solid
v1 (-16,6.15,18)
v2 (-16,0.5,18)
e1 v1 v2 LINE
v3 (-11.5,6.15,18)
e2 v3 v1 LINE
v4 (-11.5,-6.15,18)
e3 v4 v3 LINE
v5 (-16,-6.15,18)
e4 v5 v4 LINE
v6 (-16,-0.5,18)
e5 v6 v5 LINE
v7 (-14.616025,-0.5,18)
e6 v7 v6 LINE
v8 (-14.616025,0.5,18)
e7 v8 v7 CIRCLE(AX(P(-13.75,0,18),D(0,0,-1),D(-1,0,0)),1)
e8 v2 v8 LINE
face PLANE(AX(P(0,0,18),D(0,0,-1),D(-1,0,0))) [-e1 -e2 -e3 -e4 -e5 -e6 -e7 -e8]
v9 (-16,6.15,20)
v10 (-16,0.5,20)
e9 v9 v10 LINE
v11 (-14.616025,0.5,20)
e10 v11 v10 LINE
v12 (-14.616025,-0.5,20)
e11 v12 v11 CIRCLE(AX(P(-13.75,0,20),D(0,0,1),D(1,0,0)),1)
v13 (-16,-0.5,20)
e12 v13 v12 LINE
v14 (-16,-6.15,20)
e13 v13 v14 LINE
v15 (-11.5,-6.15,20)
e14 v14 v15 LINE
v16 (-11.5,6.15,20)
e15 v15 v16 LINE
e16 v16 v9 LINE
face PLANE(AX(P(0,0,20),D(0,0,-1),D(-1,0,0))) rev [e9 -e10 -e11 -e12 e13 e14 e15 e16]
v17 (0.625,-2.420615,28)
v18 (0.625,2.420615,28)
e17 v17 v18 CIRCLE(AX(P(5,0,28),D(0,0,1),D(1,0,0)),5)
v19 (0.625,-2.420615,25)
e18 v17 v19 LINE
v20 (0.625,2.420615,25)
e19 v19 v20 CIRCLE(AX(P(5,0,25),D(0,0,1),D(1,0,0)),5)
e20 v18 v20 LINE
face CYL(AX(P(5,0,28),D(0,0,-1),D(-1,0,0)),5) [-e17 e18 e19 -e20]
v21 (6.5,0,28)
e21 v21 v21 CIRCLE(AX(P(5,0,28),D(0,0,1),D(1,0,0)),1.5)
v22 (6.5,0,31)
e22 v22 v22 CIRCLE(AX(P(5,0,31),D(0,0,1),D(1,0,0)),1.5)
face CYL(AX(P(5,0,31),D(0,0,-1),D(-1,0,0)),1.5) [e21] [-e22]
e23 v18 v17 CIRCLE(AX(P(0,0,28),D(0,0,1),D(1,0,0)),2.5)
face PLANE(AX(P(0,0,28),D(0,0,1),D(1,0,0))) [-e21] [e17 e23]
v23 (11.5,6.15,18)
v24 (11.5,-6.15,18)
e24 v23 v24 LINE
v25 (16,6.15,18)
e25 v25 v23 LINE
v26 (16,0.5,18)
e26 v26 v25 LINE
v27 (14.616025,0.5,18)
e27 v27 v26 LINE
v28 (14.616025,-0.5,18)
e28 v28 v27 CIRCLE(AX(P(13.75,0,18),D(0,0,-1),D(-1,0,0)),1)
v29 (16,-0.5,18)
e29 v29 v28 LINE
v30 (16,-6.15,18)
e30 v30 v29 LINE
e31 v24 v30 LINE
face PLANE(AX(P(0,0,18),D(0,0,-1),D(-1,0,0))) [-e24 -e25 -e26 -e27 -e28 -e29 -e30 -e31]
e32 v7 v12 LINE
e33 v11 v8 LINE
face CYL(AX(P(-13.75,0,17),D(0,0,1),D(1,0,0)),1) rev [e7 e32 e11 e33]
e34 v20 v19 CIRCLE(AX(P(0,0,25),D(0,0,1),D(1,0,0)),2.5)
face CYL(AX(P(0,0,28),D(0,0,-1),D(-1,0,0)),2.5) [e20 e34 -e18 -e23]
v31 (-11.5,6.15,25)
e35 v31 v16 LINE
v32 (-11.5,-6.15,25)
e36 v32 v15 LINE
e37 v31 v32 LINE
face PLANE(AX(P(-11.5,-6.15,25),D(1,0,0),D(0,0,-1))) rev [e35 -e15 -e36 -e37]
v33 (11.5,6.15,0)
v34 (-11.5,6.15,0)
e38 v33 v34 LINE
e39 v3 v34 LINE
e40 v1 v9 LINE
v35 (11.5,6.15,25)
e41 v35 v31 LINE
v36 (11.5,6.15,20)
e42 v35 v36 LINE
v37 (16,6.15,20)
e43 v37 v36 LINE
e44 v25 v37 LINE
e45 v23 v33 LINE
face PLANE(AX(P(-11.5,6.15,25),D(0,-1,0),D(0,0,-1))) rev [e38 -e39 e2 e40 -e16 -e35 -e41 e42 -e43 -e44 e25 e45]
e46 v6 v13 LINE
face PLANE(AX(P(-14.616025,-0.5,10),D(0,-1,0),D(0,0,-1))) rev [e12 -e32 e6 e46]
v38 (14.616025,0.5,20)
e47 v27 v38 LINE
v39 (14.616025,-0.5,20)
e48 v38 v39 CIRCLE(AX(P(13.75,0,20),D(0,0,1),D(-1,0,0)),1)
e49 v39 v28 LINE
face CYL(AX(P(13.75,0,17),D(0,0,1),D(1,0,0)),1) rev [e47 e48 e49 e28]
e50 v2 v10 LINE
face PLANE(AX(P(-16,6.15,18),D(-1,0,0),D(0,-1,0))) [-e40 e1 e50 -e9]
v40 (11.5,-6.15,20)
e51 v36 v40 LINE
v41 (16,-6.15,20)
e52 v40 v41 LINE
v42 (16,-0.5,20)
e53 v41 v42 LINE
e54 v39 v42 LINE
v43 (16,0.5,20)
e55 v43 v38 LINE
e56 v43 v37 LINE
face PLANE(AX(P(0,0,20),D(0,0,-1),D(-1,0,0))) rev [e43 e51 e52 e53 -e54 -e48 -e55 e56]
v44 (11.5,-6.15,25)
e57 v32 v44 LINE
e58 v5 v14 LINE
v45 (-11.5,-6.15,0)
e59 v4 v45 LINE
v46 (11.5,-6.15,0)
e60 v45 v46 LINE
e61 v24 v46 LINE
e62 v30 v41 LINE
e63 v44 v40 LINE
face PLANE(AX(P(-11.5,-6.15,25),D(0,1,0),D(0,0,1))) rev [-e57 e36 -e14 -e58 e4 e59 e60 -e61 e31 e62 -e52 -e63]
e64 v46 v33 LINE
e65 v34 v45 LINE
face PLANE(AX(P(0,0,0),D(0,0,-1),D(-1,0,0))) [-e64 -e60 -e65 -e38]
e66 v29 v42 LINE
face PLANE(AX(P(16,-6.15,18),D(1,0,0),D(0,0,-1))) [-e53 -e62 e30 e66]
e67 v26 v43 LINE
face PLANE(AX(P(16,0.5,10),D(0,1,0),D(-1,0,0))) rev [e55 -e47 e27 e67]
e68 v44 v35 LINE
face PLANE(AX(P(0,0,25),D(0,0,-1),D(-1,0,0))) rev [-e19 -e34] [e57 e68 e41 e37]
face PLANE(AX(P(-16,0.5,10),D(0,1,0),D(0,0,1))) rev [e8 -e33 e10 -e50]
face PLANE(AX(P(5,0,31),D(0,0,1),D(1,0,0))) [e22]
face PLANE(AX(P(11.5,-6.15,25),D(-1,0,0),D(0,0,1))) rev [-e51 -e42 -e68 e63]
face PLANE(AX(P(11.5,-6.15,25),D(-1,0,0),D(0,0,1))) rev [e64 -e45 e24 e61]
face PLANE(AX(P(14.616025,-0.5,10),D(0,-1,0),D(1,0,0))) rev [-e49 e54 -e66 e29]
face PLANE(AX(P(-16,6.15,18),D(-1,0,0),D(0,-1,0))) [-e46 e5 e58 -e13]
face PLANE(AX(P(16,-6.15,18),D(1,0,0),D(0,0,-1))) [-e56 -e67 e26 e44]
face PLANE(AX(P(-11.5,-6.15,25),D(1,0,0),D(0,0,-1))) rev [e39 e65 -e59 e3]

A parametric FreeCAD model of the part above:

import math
import FreeCAD as App
import Part
import Sketcher

V = App.Vector
Q = App.Units.Quantity


def add_polygon(sketch, points):
    """Adds a closed chain of lines whose ends are joined by coincident constraints."""
    first, n = sketch.GeometryCount, len(points)
    for a, b in zip(points, points[1:] + points[:1]):
        sketch.addGeometry(Part.LineSegment(App.Vector(*a, 0), App.Vector(*b, 0)), False)
    for i in range(n):
        sketch.addConstraint(Sketcher.Constraint("Coincident", first + i, 2, first + (i + 1) % n, 1))

doc = App.newDocument("Part")
body = doc.addObject("PartDesign::Body", "Body")

sketch1 = doc.addObject("Sketcher::SketchObject", "Sketch")
body.addObject(sketch1)
sketch1.AttachmentSupport = (doc.XY_Plane, [""])
sketch1.MapMode = "FlatFace"
add_polygon(sketch1, [(-12, 6), (-12, -6), (12, -6), (12, 6)])
sketch1.addConstraint(Sketcher.Constraint("Vertical", 0))
sketch1.addConstraint(Sketcher.Constraint("Horizontal", 1))
sketch1.addConstraint(Sketcher.Constraint("Vertical", 2))
sketch1.addConstraint(Sketcher.Constraint("Horizontal", 3))
sketch1.addConstraint(Sketcher.Constraint("Symmetric", 0, 2, 2, 2, -1, 1))
sketch1.addConstraint(Sketcher.Constraint("DistanceX", 1, 1, 1, 2, Q("23 mm")))
sketch1.addConstraint(Sketcher.Constraint("DistanceY", 0, 2, 0, 1, Q("12.3 mm")))
pad1 = doc.addObject("PartDesign::Pad", "Pad")
body.addObject(pad1)
pad1.Profile = sketch1
pad1.Length = 25

sketch2 = doc.addObject("Sketcher::SketchObject", "Sketch001")
body.addObject(sketch2)
sketch2.AttachmentSupport = (doc.XY_Plane, [""])
sketch2.MapMode = "FlatFace"
sketch2.AttachmentOffset = App.Placement(V(0, 0, 25), App.Rotation())
sketch2.addGeometry(Part.ArcOfCircle(Part.Circle(V(5, 0, 0), V(0, 0, 1), 5), math.radians(-151), math.radians(151)), False)
sketch2.addGeometry(Part.ArcOfCircle(Part.Circle(V(0, 0, 0), V(0, 0, 1), 2.5), math.radians(76), math.radians(284)), False)
sketch2.addConstraint(Sketcher.Constraint("Coincident", 0, 1, 1, 2))
sketch2.addConstraint(Sketcher.Constraint("Coincident", 1, 1, 0, 2))
sketch2.addConstraint(Sketcher.Constraint("Coincident", 1, 3, -1, 1))
sketch2.addConstraint(Sketcher.Constraint("PointOnObject", 0, 3, -1))
sketch2.addConstraint(Sketcher.Constraint("Radius", 0, Q("5 mm")))
sketch2.addConstraint(Sketcher.Constraint("Radius", 1, Q("2.5 mm")))
sketch2.addConstraint(Sketcher.Constraint("DistanceX", -1, 1, 0, 3, Q("5 mm")))
pad2 = doc.addObject("PartDesign::Pad", "Pad001")
body.addObject(pad2)
pad2.Profile = sketch2
pad2.Length = 3

sketch3 = doc.addObject("Sketcher::SketchObject", "Sketch002")
body.addObject(sketch3)
sketch3.AttachmentSupport = (doc.XY_Plane, [""])
sketch3.MapMode = "FlatFace"
sketch3.AttachmentOffset = App.Placement(V(0, 0, 28), App.Rotation())
sketch3.addGeometry(Part.Circle(V(5, 0, 0), V(0, 0, 1), 1.5), False)
sketch3.addConstraint(Sketcher.Constraint("PointOnObject", 0, 3, -1))
sketch3.addConstraint(Sketcher.Constraint("Diameter", 0, Q("3 mm")))
sketch3.addConstraint(Sketcher.Constraint("DistanceX", -1, 1, 0, 3, Q("5 mm")))
pad3 = doc.addObject("PartDesign::Pad", "Pad002")
body.addObject(pad3)
pad3.Profile = sketch3
pad3.Length = 3

sketch4 = doc.addObject("Sketcher::SketchObject", "Sketch003")
body.addObject(sketch4)
sketch4.AttachmentSupport = (doc.XY_Plane, [""])
sketch4.MapMode = "FlatFace"
sketch4.AttachmentOffset = App.Placement(V(0, 0, 20), App.Rotation())
add_polygon(sketch4, [(-16, 6.2), (-16, -6.2), (-11.5, -6.2), (-11.5, 6.2)])
add_polygon(sketch4, [(11.5, 6.2), (11.5, -6.2), (16, -6.2), (16, 6.2)])
sketch4.addConstraint(Sketcher.Constraint("Vertical", 0))
sketch4.addConstraint(Sketcher.Constraint("Horizontal", 1))
sketch4.addConstraint(Sketcher.Constraint("Vertical", 2))
sketch4.addConstraint(Sketcher.Constraint("Horizontal", 3))
sketch4.addConstraint(Sketcher.Constraint("Vertical", 4))
sketch4.addConstraint(Sketcher.Constraint("Horizontal", 5))
sketch4.addConstraint(Sketcher.Constraint("Vertical", 6))
sketch4.addConstraint(Sketcher.Constraint("Horizontal", 7))
sketch4.addConstraint(Sketcher.Constraint("Symmetric", 2, 2, 4, 2, -1, 1))
sketch4.addConstraint(Sketcher.Constraint("Symmetric", 0, 2, 6, 2, -1, 1))
sketch4.addConstraint(Sketcher.Constraint("Horizontal", 1, 2, 4, 2))
sketch4.addConstraint(Sketcher.Constraint("DistanceX", 1, 1, 1, 2, Q("4.5 mm")))
sketch4.addConstraint(Sketcher.Constraint("DistanceY", 0, 2, 0, 1, Q("12.3 mm")))
sketch4.addConstraint(Sketcher.Constraint("DistanceX", 0, 2, -1, 1, Q("16 mm")))
pad4 = doc.addObject("PartDesign::Pad", "Pad003")
body.addObject(pad4)
pad4.Profile = sketch4
pad4.Length = 2
pad4.Reversed = True

sketch5 = doc.addObject("Sketcher::SketchObject", "Sketch004")
body.addObject(sketch5)
sketch5.AttachmentSupport = (doc.XY_Plane, [""])
sketch5.MapMode = "FlatFace"
sketch5.AttachmentOffset = App.Placement(V(0, 0, 20), App.Rotation())
sketch5.addGeometry(Part.Circle(V(-13.8, 0, 0), V(0, 0, 1), 1), False)
sketch5.addGeometry(Part.Circle(V(13.8, 0, 0), V(0, 0, 1), 1), False)
sketch5.addConstraint(Sketcher.Constraint("Equal", 0, 1))
sketch5.addConstraint(Sketcher.Constraint("Symmetric", 0, 3, 1, 3, -1, 1))
sketch5.addConstraint(Sketcher.Constraint("PointOnObject", 0, 3, -1))
sketch5.addConstraint(Sketcher.Constraint("Diameter", 0, Q("2 mm")))
sketch5.addConstraint(Sketcher.Constraint("DistanceX", 0, 3, 1, 3, Q("27.5 mm")))
pocket1 = doc.addObject("PartDesign::Pocket", "Pocket")
body.addObject(pocket1)
pocket1.Profile = sketch5
pocket1.Length = 3

sketch6 = doc.addObject("Sketcher::SketchObject", "Sketch005")
body.addObject(sketch6)
sketch6.AttachmentSupport = (doc.XY_Plane, [""])
sketch6.MapMode = "FlatFace"
sketch6.AttachmentOffset = App.Placement(V(0, 0, 20), App.Rotation())
add_polygon(sketch6, [(-16, 0.5), (-16, -0.5), (-14.6, -0.5), (-14.6, 0.5)])
add_polygon(sketch6, [(14.6, 0.5), (14.6, -0.5), (16, -0.5), (16, 0.5)])
sketch6.addConstraint(Sketcher.Constraint("Vertical", 0))
sketch6.addConstraint(Sketcher.Constraint("Horizontal", 1))
sketch6.addConstraint(Sketcher.Constraint("Vertical", 2))
sketch6.addConstraint(Sketcher.Constraint("Horizontal", 3))
sketch6.addConstraint(Sketcher.Constraint("Vertical", 4))
sketch6.addConstraint(Sketcher.Constraint("Horizontal", 5))
sketch6.addConstraint(Sketcher.Constraint("Vertical", 6))
sketch6.addConstraint(Sketcher.Constraint("Horizontal", 7))
sketch6.addConstraint(Sketcher.Constraint("Symmetric", 2, 2, 4, 2, -1, 1))
sketch6.addConstraint(Sketcher.Constraint("Symmetric", 0, 2, 6, 2, -1, 1))
sketch6.addConstraint(Sketcher.Constraint("Horizontal", 1, 2, 4, 2))
sketch6.addConstraint(Sketcher.Constraint("DistanceY", 0, 2, 0, 1, Q("1 mm")))
sketch6.addConstraint(Sketcher.Constraint("DistanceX", 0, 2, -1, 1, Q("16 mm")))
sketch6.addConstraint(Sketcher.Constraint("DistanceX", 1, 1, 1, 2, Q("1.383975 mm")))
pocket2 = doc.addObject("PartDesign::Pocket", "Pocket001")
body.addObject(pocket2)
pocket2.Profile = sketch6
pocket2.Length = 10

doc.recompute()
